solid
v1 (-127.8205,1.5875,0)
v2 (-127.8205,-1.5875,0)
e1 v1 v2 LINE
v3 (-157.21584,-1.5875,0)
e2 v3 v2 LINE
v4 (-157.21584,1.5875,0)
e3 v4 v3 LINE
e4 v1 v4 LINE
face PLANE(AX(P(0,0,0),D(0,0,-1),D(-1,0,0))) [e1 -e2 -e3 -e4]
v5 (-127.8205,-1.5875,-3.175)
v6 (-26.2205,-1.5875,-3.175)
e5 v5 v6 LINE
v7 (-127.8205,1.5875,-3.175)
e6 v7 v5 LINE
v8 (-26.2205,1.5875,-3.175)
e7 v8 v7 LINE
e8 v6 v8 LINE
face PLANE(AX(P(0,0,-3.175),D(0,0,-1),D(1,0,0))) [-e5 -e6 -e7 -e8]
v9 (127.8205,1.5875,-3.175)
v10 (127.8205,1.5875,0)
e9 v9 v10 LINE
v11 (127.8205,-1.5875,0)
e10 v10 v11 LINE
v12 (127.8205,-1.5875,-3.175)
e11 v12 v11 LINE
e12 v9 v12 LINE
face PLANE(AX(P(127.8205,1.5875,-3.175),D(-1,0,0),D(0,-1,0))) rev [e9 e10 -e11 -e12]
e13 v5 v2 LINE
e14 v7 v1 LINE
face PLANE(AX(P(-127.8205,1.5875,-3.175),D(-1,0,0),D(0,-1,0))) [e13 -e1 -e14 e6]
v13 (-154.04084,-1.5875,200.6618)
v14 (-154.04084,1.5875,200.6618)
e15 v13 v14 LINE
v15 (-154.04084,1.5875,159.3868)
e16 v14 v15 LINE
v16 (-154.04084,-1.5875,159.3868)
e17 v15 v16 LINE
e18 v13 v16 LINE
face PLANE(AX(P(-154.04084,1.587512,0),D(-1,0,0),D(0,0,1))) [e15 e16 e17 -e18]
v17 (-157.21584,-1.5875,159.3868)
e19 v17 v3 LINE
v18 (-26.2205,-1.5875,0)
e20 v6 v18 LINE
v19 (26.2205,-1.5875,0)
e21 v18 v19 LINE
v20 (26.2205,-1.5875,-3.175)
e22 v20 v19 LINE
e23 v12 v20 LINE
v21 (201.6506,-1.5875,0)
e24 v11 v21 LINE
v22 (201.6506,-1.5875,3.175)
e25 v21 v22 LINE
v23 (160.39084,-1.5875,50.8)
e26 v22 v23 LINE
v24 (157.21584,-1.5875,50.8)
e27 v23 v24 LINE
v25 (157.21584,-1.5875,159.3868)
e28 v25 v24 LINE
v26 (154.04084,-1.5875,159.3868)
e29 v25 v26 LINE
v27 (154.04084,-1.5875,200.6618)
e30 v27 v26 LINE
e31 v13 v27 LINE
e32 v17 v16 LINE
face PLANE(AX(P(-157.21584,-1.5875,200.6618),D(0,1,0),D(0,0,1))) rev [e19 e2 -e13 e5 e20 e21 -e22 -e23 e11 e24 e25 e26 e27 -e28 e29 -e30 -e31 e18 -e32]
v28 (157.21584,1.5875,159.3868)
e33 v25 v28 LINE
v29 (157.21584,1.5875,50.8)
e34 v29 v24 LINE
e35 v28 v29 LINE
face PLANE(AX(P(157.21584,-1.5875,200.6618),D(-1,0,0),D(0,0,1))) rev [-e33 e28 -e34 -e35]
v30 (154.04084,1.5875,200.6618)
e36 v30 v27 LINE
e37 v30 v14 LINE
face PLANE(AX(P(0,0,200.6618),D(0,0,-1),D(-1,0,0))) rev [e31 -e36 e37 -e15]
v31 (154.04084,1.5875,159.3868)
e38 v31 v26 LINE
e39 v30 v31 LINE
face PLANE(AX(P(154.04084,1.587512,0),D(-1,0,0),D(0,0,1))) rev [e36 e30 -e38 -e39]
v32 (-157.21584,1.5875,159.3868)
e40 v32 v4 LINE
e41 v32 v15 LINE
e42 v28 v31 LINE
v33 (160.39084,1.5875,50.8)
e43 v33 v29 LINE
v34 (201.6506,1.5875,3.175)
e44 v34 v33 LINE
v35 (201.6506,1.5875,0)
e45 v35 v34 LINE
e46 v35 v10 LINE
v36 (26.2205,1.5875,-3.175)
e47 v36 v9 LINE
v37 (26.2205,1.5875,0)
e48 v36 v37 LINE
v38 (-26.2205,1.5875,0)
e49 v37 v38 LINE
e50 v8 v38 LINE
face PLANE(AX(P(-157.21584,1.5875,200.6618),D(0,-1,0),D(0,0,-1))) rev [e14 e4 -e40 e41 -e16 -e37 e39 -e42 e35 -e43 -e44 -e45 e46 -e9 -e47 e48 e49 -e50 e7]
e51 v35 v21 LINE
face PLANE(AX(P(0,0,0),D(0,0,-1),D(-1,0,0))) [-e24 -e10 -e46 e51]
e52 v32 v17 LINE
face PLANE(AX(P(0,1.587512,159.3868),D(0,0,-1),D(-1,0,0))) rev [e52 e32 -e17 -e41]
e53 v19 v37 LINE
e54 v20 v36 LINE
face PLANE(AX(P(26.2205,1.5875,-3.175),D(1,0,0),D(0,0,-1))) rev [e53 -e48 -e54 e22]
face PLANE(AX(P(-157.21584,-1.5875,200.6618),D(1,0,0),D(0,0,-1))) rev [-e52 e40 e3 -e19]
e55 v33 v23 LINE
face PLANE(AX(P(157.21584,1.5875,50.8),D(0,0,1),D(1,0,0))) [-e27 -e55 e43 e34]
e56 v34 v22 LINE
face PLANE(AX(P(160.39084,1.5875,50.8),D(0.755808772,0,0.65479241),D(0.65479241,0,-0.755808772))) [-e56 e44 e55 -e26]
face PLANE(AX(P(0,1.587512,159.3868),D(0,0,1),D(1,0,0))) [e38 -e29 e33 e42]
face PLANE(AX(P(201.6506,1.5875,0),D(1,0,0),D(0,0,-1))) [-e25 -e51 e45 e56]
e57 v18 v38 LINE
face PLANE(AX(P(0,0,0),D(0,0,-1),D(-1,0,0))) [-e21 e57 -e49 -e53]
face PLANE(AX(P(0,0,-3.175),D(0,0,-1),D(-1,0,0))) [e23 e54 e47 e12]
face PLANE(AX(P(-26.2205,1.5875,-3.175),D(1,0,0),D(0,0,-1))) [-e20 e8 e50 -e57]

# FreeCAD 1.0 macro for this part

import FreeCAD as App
import Part
import Sketcher
Q = App.Units.Quantity

doc = App.newDocument("Part")
params = doc.addObject("Spreadsheet::Sheet", "Params")
for row, (alias, value) in enumerate([
    ("sketch1_height", "0.125 in"),
    ("pad1_length", "200.6618 mm"),
    ("sketch2_width", "0.125 in"),
    ("sketch2_height", "1.625 in"),
    ("pocket1_length", "259.110402 mm"),
    ("sketch3_height", "2 in"),
    ("sketch3_width", "0.125 in"),
    ("pad2_length", "0.125 in"),
    ("sketch4_width", "4 in"),
    ("sketch4_height", "0.125 in"),
    ("pad3_length", "0.125 in"),
], start=1):
    params.set(f"A{row}", alias)
    params.set(f"B{row}", "=" + value)
    params.setAlias(f"B{row}", alias)

body = doc.addObject("PartDesign::Body", "Body")

# Sketch on XY plane
sketch1 = body.newObject("Sketcher::SketchObject", "Sketch")
sketch1.AttachmentSupport = (doc.getObject("XY_Plane"), [""])
sketch1.MapMode = "FlatFace"
sketch1.addGeometry([
    Part.LineSegment(App.Vector(-157.2, 1.6, 0), App.Vector(-157.2, -1.6, 0)),
    Part.LineSegment(App.Vector(-157.2, -1.6, 0), App.Vector(157.2, -1.6, 0)),
    Part.LineSegment(App.Vector(157.2, -1.6, 0), App.Vector(157.2, 1.6, 0)),
    Part.LineSegment(App.Vector(157.2, 1.6, 0), App.Vector(-157.2, 1.6, 0)),
], False)
sketch1.addConstraint([
    Sketcher.Constraint("Coincident", 0, 2, 1, 1),
    Sketcher.Constraint("Coincident", 1, 2, 2, 1),
    Sketcher.Constraint("Coincident", 2, 2, 3, 1),
    Sketcher.Constraint("Coincident", 3, 2, 0, 1),
    Sketcher.Constraint("Vertical", 0),
    Sketcher.Constraint("Horizontal", 1),
    Sketcher.Constraint("Vertical", 2),
    Sketcher.Constraint("Horizontal", 3),
    Sketcher.Constraint("Symmetric", 0, 2, 2, 2, -1, 1),
    Sketcher.Constraint("DistanceY", 0, 2, 0, 1, Q("0.125 in")),
    Sketcher.Constraint("DistanceX", 1, 1, 1, 2, Q("12.3792 in")),
])
sketch1.setExpression("Constraints[9]", "Params.sketch1_height")
pad1 = body.newObject("PartDesign::Pad", "Pad")
pad1.Profile = sketch1
pad1.setExpression("Length", "Params.pad1_length")

# Sketch on XZ plane
sketch2 = body.newObject("Sketcher::SketchObject", "Sketch001")
sketch2.AttachmentSupport = (doc.getObject("XZ_Plane"), [""])
sketch2.MapMode = "FlatFace"
sketch2.AttachmentOffset = App.Placement(App.Vector(0, 0, 0.0625 * 25.4), App.Rotation())
sketch2.addGeometry([
    Part.LineSegment(App.Vector(-157.2, 159.4, 0), App.Vector(-157.2, 200.7, 0)),
    Part.LineSegment(App.Vector(-157.2, 200.7, 0), App.Vector(-154, 200.7, 0)),
    Part.LineSegment(App.Vector(-154, 200.7, 0), App.Vector(-154, 159.4, 0)),
    Part.LineSegment(App.Vector(-154, 159.4, 0), App.Vector(-157.2, 159.4, 0)),
], False)
sketch2.addConstraint([
    Sketcher.Constraint("Coincident", 0, 2, 1, 1),
    Sketcher.Constraint("Coincident", 1, 2, 2, 1),
    Sketcher.Constraint("Coincident", 2, 2, 3, 1),
    Sketcher.Constraint("Coincident", 3, 2, 0, 1),
    Sketcher.Constraint("Vertical", 0),
    Sketcher.Constraint("Horizontal", 1),
    Sketcher.Constraint("Vertical", 2),
    Sketcher.Constraint("Horizontal", 3),
    Sketcher.Constraint("DistanceX", 1, 1, 1, 2, Q("0.125 in")),
    Sketcher.Constraint("DistanceY", 0, 1, 0, 2, Q("1.625 in")),
    Sketcher.Constraint("DistanceX", 0, 2, -1, 1, Q("6.1896 in")),
    Sketcher.Constraint("DistanceY", -1, 1, 0, 2, Q("200.6618 mm")),
])
sketch2.setExpression("Constraints[8]", "Params.sketch2_width")
sketch2.setExpression("Constraints[9]", "Params.sketch2_height")
pocket1 = body.newObject("PartDesign::Pocket", "Pocket")
pocket1.Profile = sketch2
pocket1.setExpression("Length", "Params.pocket1_length")
doc.recompute()

mirrored = body.newObject("PartDesign::Mirrored", "Mirrored")
mirrored.Originals = [pocket1]
mirrored.MirrorPlane = (doc.getObject("YZ_Plane"), [""])
body.Tip = mirrored

# Sketch on XZ plane
sketch3 = body.newObject("Sketcher::SketchObject", "Sketch002")
sketch3.AttachmentSupport = (doc.getObject("XZ_Plane"), [""])
sketch3.MapMode = "FlatFace"
sketch3.AttachmentOffset = App.Placement(App.Vector(0, 0, 0.0625 * 25.4), App.Rotation())
sketch3.addGeometry([
    Part.LineSegment(App.Vector(201.7, 0, 0), App.Vector(201.7, 3.2, 0)),  # 0
    Part.LineSegment(App.Vector(201.7, 3.2, 0), App.Vector(160.4, 50.8, 0)),  # 1
    Part.LineSegment(App.Vector(160.4, 50.8, 0), App.Vector(157.2, 50.8, 0)),  # 2
    Part.LineSegment(App.Vector(157.2, 50.8, 0), App.Vector(157.2, 0, 0)),  # 3
    Part.LineSegment(App.Vector(157.2, 0, 0), App.Vector(201.7, 0, 0)),  # 4
], False)
sketch3.addConstraint([
    Sketcher.Constraint("Coincident", 0, 2, 1, 1),
    Sketcher.Constraint("Coincident", 1, 2, 2, 1),
    Sketcher.Constraint("Coincident", 2, 2, 3, 1),
    Sketcher.Constraint("Coincident", 3, 2, 4, 1),
    Sketcher.Constraint("Coincident", 4, 2, 0, 1),
    Sketcher.Constraint("Vertical", 0),
    Sketcher.Constraint("Horizontal", 2),
    Sketcher.Constraint("Vertical", 3),
    Sketcher.Constraint("Horizontal", 4),
    Sketcher.Constraint("PointOnObject", 3, 2, -1),
    Sketcher.Constraint("Equal", 2, 0),
    Sketcher.Constraint("DistanceY", 3, 2, 3, 1, Q("2 in")),
    Sketcher.Constraint("DistanceX", 2, 2, 2, 1, Q("0.125 in")),
    Sketcher.Constraint("DistanceX", 4, 1, 4, 2, Q("1.7494 in")),
    Sketcher.Constraint("DistanceX", -1, 1, 0, 2, Q("7.939 in")),
])
sketch3.setExpression("Constraints[11]", "Params.sketch3_height")
sketch3.setExpression("Constraints[12]", "Params.sketch3_width")
pad2 = body.newObject("PartDesign::Pad", "Pad001")
pad2.Profile = sketch3
pad2.setExpression("Length", "Params.pad2_length")
pad2.Reversed = True

# Sketch on XY plane
sketch4 = body.newObject("Sketcher::SketchObject", "Sketch003")
sketch4.AttachmentSupport = (doc.getObject("XY_Plane"), [""])
sketch4.MapMode = "FlatFace"
sketch4.addGeometry([
    Part.LineSegment(App.Vector(127.8, 1.6, 0), App.Vector(127.8, -1.6, 0)),
    Part.LineSegment(App.Vector(127.8, -1.6, 0), App.Vector(26.2, -1.6, 0)),
    Part.LineSegment(App.Vector(26.2, -1.6, 0), App.Vector(26.2, 1.6, 0)),
    Part.LineSegment(App.Vector(26.2, 1.6, 0), App.Vector(127.8, 1.6, 0)),
], False)
sketch4.addConstraint([
    Sketcher.Constraint("Coincident", 0, 2, 1, 1),
    Sketcher.Constraint("Coincident", 1, 2, 2, 1),
    Sketcher.Constraint("Coincident", 2, 2, 3, 1),
    Sketcher.Constraint("Coincident", 3, 2, 0, 1),
    Sketcher.Constraint("Vertical", 0),
    Sketcher.Constraint("Horizontal", 1),
    Sketcher.Constraint("Vertical", 2),
    Sketcher.Constraint("Horizontal", 3),
    Sketcher.Constraint("DistanceX", 1, 2, 1, 1, Q("4 in")),
    Sketcher.Constraint("DistanceY", 0, 2, 0, 1, Q("0.125 in")),
    Sketcher.Constraint("DistanceY", 0, 2, -1, 1, Q("0.0625 in")),
    Sketcher.Constraint("DistanceX", -1, 1, 0, 2, Q("127.8205 mm")),
])
sketch4.setExpression("Constraints[8]", "Params.sketch4_width")
sketch4.setExpression("Constraints[9]", "Params.sketch4_height")
pad3 = body.newObject("PartDesign::Pad", "Pad002")
pad3.Profile = sketch4
pad3.setExpression("Length", "Params.pad3_length")
pad3.Reversed = True
doc.recompute()

mirrored2 = body.newObject("PartDesign::Mirrored", "Mirrored001")
mirrored2.Originals = [pad3]
mirrored2.MirrorPlane = (doc.getObject("YZ_Plane"), [""])
body.Tip = mirrored2

doc.recompute()
